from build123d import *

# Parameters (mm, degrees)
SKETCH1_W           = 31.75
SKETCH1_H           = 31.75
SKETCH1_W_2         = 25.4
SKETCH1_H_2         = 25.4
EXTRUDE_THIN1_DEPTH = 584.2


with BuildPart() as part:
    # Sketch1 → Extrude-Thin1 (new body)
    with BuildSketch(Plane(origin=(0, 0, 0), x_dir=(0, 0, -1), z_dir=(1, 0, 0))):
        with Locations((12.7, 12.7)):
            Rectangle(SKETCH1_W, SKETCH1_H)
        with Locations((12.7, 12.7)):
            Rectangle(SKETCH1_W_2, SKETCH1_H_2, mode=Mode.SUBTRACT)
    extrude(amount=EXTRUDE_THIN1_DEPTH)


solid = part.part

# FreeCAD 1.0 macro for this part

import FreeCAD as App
import Part
import Sketcher

V = App.Vector
Q = App.Units.Quantity


def add_polygon(sketch, points):
    """Adds a closed chain of lines whose ends are joined by coincident constraints."""
    first, n = sketch.GeometryCount, len(points)
    for a, b in zip(points, points[1:] + points[:1]):
        sketch.addGeometry(Part.LineSegment(App.Vector(*a, 0), App.Vector(*b, 0)), False)
    for i in range(n):
        sketch.addConstraint(Sketcher.Constraint("Coincident", first + i, 2, first + (i + 1) % n, 1))

doc = App.newDocument("Part")
body = doc.addObject("PartDesign::Body", "Body")

# Sketch on YZ plane
sketch1 = doc.addObject("Sketcher::SketchObject", "Sketch")
body.addObject(sketch1)
sketch1.AttachmentSupport = (doc.YZ_Plane, [""])
sketch1.MapMode = "FlatFace"
add_polygon(sketch1, [(28.575, 3.175), (-3.175, 3.175), (-3.175, -28.575), (28.575, -28.575)])  # lines 0-3
add_polygon(sketch1, [(0, -25.4), (0, 0), (25.4, 0), (25.4, -25.4)])  # lines 4-7
sketch1.addConstraint([
    Sketcher.Constraint("Horizontal", 0),
    Sketcher.Constraint("Vertical", 1),
    Sketcher.Constraint("Horizontal", 2),
    Sketcher.Constraint("Vertical", 3),
    Sketcher.Constraint("Vertical", 4),
    Sketcher.Constraint("Horizontal", 5),
    Sketcher.Constraint("Vertical", 6),
    Sketcher.Constraint("Horizontal", 7),
    Sketcher.Constraint("Coincident", 4, 2, -1, 1),
    Sketcher.Constraint("Equal", 2, 1),
    Sketcher.Constraint("Equal", 7, 4),
    Sketcher.Constraint("DistanceX", 5, 1, 5, 2, Q("1 in")),
    Sketcher.Constraint("DistanceX", 0, 2, 0, 1, Q("1.25 in")),
    Sketcher.Constraint("DistanceX", 0, 2, -1, 1, Q("0.125 in")),
    Sketcher.Constraint("DistanceY", -1, 1, 0, 2, Q("0.125 in")),
])
pad1 = doc.addObject("PartDesign::Pad", "Pad")
body.addObject(pad1)
pad1.Profile = sketch1
pad1.Length = Q("23 in")

doc.recompute()
